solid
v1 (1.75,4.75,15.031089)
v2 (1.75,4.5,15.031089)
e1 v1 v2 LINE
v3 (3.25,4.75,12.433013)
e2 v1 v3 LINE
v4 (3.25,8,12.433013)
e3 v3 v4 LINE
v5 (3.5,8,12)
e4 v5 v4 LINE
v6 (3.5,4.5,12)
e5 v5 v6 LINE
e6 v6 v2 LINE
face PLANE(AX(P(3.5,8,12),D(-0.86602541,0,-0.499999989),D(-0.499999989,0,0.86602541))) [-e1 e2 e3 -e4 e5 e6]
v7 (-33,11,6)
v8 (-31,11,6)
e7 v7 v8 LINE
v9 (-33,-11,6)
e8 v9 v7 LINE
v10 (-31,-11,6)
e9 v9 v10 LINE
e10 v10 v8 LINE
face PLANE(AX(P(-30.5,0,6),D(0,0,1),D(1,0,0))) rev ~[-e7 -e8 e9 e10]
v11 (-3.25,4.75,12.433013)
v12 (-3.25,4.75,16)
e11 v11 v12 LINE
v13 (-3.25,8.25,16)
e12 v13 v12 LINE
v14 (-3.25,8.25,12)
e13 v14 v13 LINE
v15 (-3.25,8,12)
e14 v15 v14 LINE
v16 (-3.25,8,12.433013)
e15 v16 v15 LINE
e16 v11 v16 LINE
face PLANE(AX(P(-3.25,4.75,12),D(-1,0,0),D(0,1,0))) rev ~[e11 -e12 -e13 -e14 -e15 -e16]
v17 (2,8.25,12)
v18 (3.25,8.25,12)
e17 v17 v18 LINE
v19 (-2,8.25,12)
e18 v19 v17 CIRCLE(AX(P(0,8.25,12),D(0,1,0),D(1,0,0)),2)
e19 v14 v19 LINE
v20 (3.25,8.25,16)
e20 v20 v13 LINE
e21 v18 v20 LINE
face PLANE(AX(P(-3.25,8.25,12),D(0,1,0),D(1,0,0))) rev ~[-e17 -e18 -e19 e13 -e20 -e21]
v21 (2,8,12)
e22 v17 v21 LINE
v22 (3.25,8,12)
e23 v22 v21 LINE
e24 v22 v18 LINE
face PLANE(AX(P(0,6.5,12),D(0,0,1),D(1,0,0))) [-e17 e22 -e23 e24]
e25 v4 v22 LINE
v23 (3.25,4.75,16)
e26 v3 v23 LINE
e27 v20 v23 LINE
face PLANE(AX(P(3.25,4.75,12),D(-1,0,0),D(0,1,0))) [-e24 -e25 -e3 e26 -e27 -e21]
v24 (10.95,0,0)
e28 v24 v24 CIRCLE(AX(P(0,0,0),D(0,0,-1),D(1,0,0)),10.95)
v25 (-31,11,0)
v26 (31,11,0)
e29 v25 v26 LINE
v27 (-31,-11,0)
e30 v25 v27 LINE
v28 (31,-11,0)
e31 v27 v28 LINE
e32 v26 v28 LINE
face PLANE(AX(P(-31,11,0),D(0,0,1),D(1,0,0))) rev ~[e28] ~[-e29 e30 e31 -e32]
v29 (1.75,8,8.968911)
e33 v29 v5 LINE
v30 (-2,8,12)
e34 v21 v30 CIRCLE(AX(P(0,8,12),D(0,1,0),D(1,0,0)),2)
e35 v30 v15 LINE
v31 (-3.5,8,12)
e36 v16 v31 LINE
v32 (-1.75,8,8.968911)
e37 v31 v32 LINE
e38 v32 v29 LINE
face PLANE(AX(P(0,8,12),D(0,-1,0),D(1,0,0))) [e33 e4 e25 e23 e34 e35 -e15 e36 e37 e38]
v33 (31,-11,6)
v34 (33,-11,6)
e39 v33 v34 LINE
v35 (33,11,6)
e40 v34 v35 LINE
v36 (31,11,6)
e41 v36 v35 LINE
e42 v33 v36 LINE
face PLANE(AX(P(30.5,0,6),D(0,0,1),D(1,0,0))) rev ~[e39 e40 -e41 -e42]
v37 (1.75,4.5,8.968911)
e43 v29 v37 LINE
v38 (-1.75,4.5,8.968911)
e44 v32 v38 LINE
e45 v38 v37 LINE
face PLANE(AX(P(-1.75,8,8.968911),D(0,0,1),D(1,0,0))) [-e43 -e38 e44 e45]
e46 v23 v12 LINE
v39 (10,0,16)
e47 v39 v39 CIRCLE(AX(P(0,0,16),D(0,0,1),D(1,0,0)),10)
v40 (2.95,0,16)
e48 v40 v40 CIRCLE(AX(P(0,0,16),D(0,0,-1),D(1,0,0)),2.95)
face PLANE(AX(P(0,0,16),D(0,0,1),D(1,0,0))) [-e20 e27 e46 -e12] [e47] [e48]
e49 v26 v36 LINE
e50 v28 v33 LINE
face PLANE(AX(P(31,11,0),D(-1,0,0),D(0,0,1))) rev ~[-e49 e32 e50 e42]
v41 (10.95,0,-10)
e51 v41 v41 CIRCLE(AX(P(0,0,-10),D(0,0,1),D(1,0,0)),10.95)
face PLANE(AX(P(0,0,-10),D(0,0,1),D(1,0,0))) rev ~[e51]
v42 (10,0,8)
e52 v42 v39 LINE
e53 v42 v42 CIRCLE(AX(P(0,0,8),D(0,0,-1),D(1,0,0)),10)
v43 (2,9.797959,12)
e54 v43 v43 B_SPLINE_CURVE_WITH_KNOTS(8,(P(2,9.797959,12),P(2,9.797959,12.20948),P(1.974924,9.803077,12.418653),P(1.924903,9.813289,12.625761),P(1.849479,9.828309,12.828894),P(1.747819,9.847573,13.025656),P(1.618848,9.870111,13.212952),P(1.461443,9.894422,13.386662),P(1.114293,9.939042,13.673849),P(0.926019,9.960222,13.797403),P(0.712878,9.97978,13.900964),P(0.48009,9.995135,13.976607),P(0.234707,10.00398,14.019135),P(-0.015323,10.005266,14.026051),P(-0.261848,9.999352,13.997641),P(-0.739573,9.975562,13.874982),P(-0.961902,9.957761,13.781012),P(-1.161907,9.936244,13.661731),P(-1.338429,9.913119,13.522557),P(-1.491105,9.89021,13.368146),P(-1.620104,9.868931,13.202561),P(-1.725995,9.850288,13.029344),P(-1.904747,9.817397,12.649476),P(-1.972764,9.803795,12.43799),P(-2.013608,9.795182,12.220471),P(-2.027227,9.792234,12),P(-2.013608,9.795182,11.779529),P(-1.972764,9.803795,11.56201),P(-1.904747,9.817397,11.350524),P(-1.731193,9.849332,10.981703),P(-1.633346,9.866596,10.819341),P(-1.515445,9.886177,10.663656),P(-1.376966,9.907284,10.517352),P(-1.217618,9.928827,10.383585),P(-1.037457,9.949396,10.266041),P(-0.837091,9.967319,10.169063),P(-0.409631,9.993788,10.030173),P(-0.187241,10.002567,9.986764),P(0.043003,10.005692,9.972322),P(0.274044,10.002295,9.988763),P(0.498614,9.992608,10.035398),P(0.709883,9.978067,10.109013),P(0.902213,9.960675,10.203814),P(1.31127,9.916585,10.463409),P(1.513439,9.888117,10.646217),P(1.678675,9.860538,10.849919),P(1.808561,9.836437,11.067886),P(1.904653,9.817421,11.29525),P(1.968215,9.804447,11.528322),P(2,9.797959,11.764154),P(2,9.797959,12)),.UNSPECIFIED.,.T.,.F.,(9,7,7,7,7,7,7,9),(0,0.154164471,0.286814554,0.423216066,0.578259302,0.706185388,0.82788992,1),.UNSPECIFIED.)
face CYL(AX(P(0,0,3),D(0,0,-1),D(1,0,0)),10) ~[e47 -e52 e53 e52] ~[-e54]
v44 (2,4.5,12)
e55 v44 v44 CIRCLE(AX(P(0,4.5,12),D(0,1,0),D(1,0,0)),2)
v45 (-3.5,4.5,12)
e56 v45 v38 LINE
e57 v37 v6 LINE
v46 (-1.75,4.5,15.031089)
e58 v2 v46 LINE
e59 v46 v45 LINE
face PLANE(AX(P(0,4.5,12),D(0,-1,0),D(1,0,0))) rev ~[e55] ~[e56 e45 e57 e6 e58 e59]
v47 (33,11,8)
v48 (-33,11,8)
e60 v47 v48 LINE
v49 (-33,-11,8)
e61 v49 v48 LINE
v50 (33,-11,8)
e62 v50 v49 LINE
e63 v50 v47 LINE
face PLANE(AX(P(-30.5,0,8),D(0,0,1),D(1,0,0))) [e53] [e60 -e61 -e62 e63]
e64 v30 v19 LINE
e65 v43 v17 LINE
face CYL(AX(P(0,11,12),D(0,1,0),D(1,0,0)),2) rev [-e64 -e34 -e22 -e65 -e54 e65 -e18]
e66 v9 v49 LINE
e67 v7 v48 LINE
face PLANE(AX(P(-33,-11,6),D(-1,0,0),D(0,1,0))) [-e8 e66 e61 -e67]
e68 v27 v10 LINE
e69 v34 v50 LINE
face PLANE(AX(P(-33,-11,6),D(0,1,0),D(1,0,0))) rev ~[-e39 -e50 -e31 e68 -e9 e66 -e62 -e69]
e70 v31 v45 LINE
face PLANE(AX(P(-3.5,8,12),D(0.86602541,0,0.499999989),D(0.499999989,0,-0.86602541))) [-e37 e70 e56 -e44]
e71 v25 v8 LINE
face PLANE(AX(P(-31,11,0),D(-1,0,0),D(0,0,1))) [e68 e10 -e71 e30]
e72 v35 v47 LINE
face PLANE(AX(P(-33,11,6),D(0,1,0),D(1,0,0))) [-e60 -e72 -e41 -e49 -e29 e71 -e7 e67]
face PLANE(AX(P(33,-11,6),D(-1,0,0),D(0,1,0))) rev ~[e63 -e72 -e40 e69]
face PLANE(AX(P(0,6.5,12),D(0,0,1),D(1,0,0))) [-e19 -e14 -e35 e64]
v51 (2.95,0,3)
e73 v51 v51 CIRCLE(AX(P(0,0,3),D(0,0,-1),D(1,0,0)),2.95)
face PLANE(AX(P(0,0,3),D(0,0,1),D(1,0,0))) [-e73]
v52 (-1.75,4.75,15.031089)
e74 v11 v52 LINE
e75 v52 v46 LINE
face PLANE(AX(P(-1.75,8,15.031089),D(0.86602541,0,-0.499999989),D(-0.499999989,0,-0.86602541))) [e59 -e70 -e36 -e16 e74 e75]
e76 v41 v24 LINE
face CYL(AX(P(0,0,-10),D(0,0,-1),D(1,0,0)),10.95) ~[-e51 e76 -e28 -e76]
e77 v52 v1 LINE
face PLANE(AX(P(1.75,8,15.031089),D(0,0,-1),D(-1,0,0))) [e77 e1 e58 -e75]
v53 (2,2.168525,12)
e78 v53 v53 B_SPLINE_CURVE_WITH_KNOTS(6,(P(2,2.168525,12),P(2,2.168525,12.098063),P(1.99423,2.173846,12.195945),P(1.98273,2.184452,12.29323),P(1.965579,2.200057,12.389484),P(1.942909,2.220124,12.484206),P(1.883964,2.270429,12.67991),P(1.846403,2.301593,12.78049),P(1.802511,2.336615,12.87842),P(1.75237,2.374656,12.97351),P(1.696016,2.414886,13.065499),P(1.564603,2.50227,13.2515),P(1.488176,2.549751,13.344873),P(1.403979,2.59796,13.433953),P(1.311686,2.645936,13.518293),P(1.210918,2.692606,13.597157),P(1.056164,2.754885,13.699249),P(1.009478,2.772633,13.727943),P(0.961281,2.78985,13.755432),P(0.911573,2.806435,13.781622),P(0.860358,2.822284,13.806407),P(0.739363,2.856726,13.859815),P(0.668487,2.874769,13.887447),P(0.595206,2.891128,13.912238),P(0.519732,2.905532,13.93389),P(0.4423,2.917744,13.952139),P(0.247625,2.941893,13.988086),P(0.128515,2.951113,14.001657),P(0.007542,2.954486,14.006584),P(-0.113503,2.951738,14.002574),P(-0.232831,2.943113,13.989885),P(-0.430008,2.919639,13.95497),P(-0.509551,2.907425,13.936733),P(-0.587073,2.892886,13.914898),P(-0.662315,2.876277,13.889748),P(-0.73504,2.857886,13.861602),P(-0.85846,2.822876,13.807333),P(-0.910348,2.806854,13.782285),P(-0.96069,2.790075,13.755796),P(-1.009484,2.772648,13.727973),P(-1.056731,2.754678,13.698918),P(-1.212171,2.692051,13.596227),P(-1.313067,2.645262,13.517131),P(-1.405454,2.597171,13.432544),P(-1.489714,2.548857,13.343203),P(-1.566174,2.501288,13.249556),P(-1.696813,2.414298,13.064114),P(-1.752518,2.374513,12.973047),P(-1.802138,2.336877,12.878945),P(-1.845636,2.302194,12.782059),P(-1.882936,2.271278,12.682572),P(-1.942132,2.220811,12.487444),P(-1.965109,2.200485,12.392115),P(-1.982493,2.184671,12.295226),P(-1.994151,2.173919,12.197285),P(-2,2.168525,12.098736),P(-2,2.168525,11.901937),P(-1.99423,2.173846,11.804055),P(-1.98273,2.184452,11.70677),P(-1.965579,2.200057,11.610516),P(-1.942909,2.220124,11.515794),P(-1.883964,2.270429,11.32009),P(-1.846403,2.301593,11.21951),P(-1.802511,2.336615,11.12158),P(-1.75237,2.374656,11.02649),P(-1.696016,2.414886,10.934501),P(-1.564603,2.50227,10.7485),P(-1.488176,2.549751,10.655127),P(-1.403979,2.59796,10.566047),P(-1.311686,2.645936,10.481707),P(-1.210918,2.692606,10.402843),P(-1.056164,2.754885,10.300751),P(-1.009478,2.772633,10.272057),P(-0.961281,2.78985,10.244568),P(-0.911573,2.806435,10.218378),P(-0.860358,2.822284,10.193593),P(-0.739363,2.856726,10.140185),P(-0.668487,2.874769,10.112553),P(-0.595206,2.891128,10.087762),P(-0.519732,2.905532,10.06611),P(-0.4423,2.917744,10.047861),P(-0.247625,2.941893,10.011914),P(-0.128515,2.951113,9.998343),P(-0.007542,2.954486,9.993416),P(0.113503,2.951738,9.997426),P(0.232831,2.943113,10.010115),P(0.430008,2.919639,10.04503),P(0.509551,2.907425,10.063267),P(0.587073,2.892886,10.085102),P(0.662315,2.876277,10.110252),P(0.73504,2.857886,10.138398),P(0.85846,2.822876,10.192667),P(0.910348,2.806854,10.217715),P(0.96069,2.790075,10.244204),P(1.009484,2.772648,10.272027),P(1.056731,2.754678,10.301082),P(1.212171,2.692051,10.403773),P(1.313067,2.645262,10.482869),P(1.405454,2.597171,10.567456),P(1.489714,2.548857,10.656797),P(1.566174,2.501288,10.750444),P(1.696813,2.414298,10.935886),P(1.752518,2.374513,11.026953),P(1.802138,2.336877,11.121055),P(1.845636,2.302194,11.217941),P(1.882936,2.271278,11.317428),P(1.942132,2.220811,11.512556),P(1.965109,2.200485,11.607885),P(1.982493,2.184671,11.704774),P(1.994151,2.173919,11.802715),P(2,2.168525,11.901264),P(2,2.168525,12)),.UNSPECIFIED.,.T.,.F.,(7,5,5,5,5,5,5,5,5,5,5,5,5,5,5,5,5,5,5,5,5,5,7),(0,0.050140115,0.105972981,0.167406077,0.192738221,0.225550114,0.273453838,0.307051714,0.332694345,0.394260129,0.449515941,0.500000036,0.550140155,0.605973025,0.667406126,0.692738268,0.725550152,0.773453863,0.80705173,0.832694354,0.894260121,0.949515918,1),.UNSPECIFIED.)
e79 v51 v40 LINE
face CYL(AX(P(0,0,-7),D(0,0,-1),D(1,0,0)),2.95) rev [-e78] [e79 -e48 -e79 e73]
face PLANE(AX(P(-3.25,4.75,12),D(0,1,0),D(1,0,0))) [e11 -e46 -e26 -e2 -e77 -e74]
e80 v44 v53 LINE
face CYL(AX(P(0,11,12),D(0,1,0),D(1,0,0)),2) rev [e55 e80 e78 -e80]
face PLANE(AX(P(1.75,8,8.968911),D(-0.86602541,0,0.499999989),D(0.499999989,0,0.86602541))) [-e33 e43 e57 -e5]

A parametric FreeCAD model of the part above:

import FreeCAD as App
import Part
import Sketcher
from FreeCAD import Vector
Q = App.Units.Quantity


def add_polygon(sketch, points):
    """Adds a closed chain of lines whose ends are joined by coincident constraints."""
    first, n = sketch.GeometryCount, len(points)
    for a, b in zip(points, points[1:] + points[:1]):
        sketch.addGeometry(Part.LineSegment(App.Vector(*a, 0), App.Vector(*b, 0)), False)
    for i in range(n):
        sketch.addConstraint(Sketcher.Constraint("Coincident", first + i, 2, first + (i + 1) % n, 1))

doc = App.newDocument("Part")
body = doc.addObject("PartDesign::Body", "Body")

sketch1 = body.newObject("Sketcher::SketchObject", "Sketch")
sketch1.AttachmentSupport = (doc.getObject("XY_Plane"), [""])
sketch1.MapMode = "FlatFace"
sketch1.AttachmentOffset = App.Placement(Vector(0, 0, 6), App.Rotation())
add_polygon(sketch1, [(28, 11), (28, -11), (33, -11), (33, 11)])
sketch1.addConstraint(Sketcher.Constraint("Vertical", 0))
sketch1.addConstraint(Sketcher.Constraint("Horizontal", 1))
sketch1.addConstraint(Sketcher.Constraint("Vertical", 2))
sketch1.addConstraint(Sketcher.Constraint("Horizontal", 3))
sketch1.addConstraint(Sketcher.Constraint("DistanceX", 1, 1, 1, 2, Q("5 mm")))
sketch1.addConstraint(Sketcher.Constraint("DistanceY", 0, 2, 0, 1, Q("22 mm")))
sketch1.addConstraint(Sketcher.Constraint("DistanceX", -1, 1, 0, 2, Q("28 mm")))
sketch1.addConstraint(Sketcher.Constraint("DistanceY", 0, 2, -1, 1, Q("11 mm")))
pad1 = body.newObject("PartDesign::Pad", "Pad")
pad1.Profile = sketch1
pad1.Length = 2
body2 = doc.addObject("PartDesign::Body", "Body001")

sketch2 = body2.newObject("Sketcher::SketchObject", "Sketch001")
sketch2.AttachmentSupport = (doc.getObject("XY_Plane001"), [""])
sketch2.MapMode = "FlatFace"
sketch2.AttachmentOffset = App.Placement(Vector(0, 0, 6), App.Rotation())
add_polygon(sketch2, [(-33, 11), (-33, -11), (-28, -11), (-28, 11)])
sketch2.addConstraint(Sketcher.Constraint("Vertical", 0))
sketch2.addConstraint(Sketcher.Constraint("Horizontal", 1))
sketch2.addConstraint(Sketcher.Constraint("Vertical", 2))
sketch2.addConstraint(Sketcher.Constraint("Horizontal", 3))
sketch2.addConstraint(Sketcher.Constraint("DistanceX", 1, 1, 1, 2, Q("5 mm")))
sketch2.addConstraint(Sketcher.Constraint("DistanceY", 0, 2, 0, 1, Q("22 mm")))
sketch2.addConstraint(Sketcher.Constraint("DistanceX", 0, 2, -1, 1, Q("33 mm")))
sketch2.addConstraint(Sketcher.Constraint("DistanceY", 0, 2, -1, 1, Q("11 mm")))
pad2 = body2.newObject("PartDesign::Pad", "Pad001")
pad2.Profile = sketch2
pad2.Length = 2
body3 = doc.addObject("PartDesign::Body", "Body002")

sketch3 = body3.newObject("Sketcher::SketchObject", "Sketch002")
sketch3.AttachmentSupport = (doc.getObject("XY_Plane002"), [""])
sketch3.MapMode = "FlatFace"
sketch3.AttachmentOffset = App.Placement(Vector(0, 0, -7), App.Rotation())
sketch3.addGeometry(Part.Circle(Vector(0, 0, 0), Vector(0, 0, 1), 2.95), False)
sketch3.addConstraint(Sketcher.Constraint("Coincident", 0, 3, -1, 1))
sketch3.addConstraint(Sketcher.Constraint("Diameter", 0, Q("5.9 mm")))
pad3 = body3.newObject("PartDesign::Pad", "Pad002")
pad3.Profile = sketch3
pad3.Length = 25
body4 = doc.addObject("PartDesign::Body", "Body003")

sketch4 = body4.newObject("Sketcher::SketchObject", "Sketch003")
sketch4.AttachmentSupport = (doc.getObject("XY_Plane003"), [""])
sketch4.MapMode = "FlatFace"
sketch4.AttachmentOffset = App.Placement(Vector(0, 0, -7), App.Rotation())
sketch4.addGeometry(Part.Circle(Vector(0, 0, 0), Vector(0, 0, 1), 2.85), False)
sketch4.addConstraint(Sketcher.Constraint("Coincident", 0, 3, -1, 1))
sketch4.addConstraint(Sketcher.Constraint("Diameter", 0, Q("5.7 mm")))
pad4 = body4.newObject("PartDesign::Pad", "Pad003")
pad4.Profile = sketch4
pad4.Length = 25
body5 = doc.addObject("PartDesign::Body", "Body004")

sketch5 = body5.newObject("Sketcher::SketchObject", "Sketch004")
sketch5.AttachmentSupport = (doc.getObject("XZ_Plane004"), [""])
sketch5.MapMode = "FlatFace"
sketch5.AttachmentOffset = App.Placement(Vector(0, 0, -11), App.Rotation())
add_polygon(sketch5, [(-31, 8), (-31, 0), (31, 0), (31, 8)])
sketch5.addConstraint(Sketcher.Constraint("Vertical", 0))
sketch5.addConstraint(Sketcher.Constraint("Horizontal", 1))
sketch5.addConstraint(Sketcher.Constraint("Vertical", 2))
sketch5.addConstraint(Sketcher.Constraint("Horizontal", 3))
sketch5.addConstraint(Sketcher.Constraint("Symmetric", 0, 2, 1, 2, -1, 1))
sketch5.addConstraint(Sketcher.Constraint("DistanceX", 1, 1, 1, 2, Q("62 mm")))
sketch5.addConstraint(Sketcher.Constraint("DistanceY", 0, 2, 0, 1, Q("8 mm")))
pad5 = body5.newObject("PartDesign::Pad", "Pad004")
pad5.Profile = sketch5
pad5.Length = 22
doc.recompute()

boolean = body5.newObject("PartDesign::Boolean", "Boolean")
boolean.Type = "Cut"
boolean.addObjects([body4])
body6 = doc.addObject("PartDesign::Body", "Body005")

sketch6 = body6.newObject("Sketcher::SketchObject", "Sketch005")
sketch6.AttachmentSupport = (doc.getObject("XZ_Plane005"), [""])
sketch6.MapMode = "FlatFace"
sketch6.AttachmentOffset = App.Placement(Vector(0, 0, -11), App.Rotation())
sketch6.addGeometry(Part.Circle(Vector(0, 9, 0), Vector(0, 0, 1), 2), False)
sketch6.addConstraint(Sketcher.Constraint("PointOnObject", 0, 3, -2))
sketch6.addConstraint(Sketcher.Constraint("Diameter", 0, Q("4 mm")))
sketch6.addConstraint(Sketcher.Constraint("DistanceY", -1, 1, 0, 3, Q("9 mm")))
pad6 = body6.newObject("PartDesign::Pad", "Pad005")
pad6.Profile = sketch6
pad6.Length = 10
body7 = doc.addObject("PartDesign::Body", "Body006")

sketch7 = body7.newObject("Sketcher::SketchObject", "Sketch006")
sketch7.AttachmentSupport = (doc.getObject("XY_Plane006"), [""])
sketch7.MapMode = "FlatFace"
sketch7.AttachmentOffset = App.Placement(Vector(0, 0, 9), App.Rotation())
add_polygon(sketch7, [(-3.25, 8.25), (-3.25, 4.75), (3.25, 4.75), (3.25, 8.25)])
sketch7.addConstraint(Sketcher.Constraint("Vertical", 0))
sketch7.addConstraint(Sketcher.Constraint("Horizontal", 1))
sketch7.addConstraint(Sketcher.Constraint("Vertical", 2))
sketch7.addConstraint(Sketcher.Constraint("Horizontal", 3))
sketch7.addConstraint(Sketcher.Constraint("DistanceX", 1, 1, 1, 2, Q("6.5 mm")))
sketch7.addConstraint(Sketcher.Constraint("DistanceY", 0, 2, 0, 1, Q("3.5 mm")))
sketch7.addConstraint(Sketcher.Constraint("DistanceX", 0, 2, -1, 1, Q("3.25 mm")))
sketch7.addConstraint(Sketcher.Constraint("DistanceY", -1, 1, 0, 2, Q("4.75 mm")))
pad7 = body7.newObject("PartDesign::Pad", "Pad006")
pad7.Profile = sketch7
pad7.Length = 6.5
body8 = doc.addObject("PartDesign::Body", "Body007")

sketch8 = body8.newObject("Sketcher::SketchObject", "Sketch007")
sketch8.AttachmentSupport = (doc.getObject("XZ_Plane007"), [""])
sketch8.MapMode = "FlatFace"
sketch8.AttachmentOffset = App.Placement(Vector(0, 0, -8), App.Rotation())
add_polygon(sketch8, [(3.5, 9), (1.75, 12.031089), (-1.75, 12.031089), (-3.5, 9), (-1.75, 5.968911), (1.75, 5.968911)])
sketch8.addConstraint(Sketcher.Constraint("Horizontal", 1))
sketch8.addConstraint(Sketcher.Constraint("Horizontal", 4))
sketch8.addConstraint(Sketcher.Constraint("Symmetric", 2, 2, 5, 2, -2))
sketch8.addConstraint(Sketcher.Constraint("Parallel", 0, 3))
sketch8.addConstraint(Sketcher.Constraint("Parallel", 2, 5))
sketch8.addConstraint(Sketcher.Constraint("Vertical", 1, 2, 3, 2))
sketch8.addConstraint(Sketcher.Constraint("Vertical", 0, 2, 4, 2))
sketch8.addConstraint(Sketcher.Constraint("Angle", 0, Q("119.999999 deg")))
sketch8.addConstraint(Sketcher.Constraint("DistanceX", 1, 2, 1, 1, Q("3.5 mm")))
sketch8.addConstraint(Sketcher.Constraint("DistanceY", -1, 1, 2, 2, Q("9 mm")))
sketch8.addConstraint(Sketcher.Constraint("DistanceX", 2, 2, 5, 2, Q("7 mm")))
pad8 = body8.newObject("PartDesign::Pad", "Pad007")
pad8.Profile = sketch8
pad8.Length = 3.5
body9 = doc.addObject("PartDesign::Body", "Body008")

sketch9 = body9.newObject("Sketcher::SketchObject", "Sketch008")
sketch9.AttachmentSupport = (doc.getObject("XY_Plane008"), [""])
sketch9.MapMode = "FlatFace"
sketch9.AttachmentOffset = App.Placement(Vector(0, 0, -7), App.Rotation())
sketch9.addGeometry(Part.Circle(Vector(0, 0, 0), Vector(0, 0, 1), 2.85), False)
sketch9.addConstraint(Sketcher.Constraint("Coincident", 0, 3, -1, 1))
sketch9.addConstraint(Sketcher.Constraint("Diameter", 0, Q("5.7 mm")))
pad9 = body9.newObject("PartDesign::Pad", "Pad008")
pad9.Profile = sketch9
pad9.Length = 25
body10 = doc.addObject("PartDesign::Body", "Body009")

sketch10 = body10.newObject("Sketcher::SketchObject", "Sketch009")
sketch10.AttachmentSupport = (doc.getObject("XY_Plane009"), [""])
sketch10.MapMode = "FlatFace"
sketch10.addGeometry(Part.Circle(Vector(0, 0, 0), Vector(0, 0, 1), 10), False)
sketch10.addConstraint(Sketcher.Constraint("Coincident", 0, 3, -1, 1))
sketch10.addConstraint(Sketcher.Constraint("Diameter", 0, Q("20 mm")))
pad10 = body10.newObject("PartDesign::Pad", "Pad009")
pad10.Profile = sketch10
pad10.Length = 13
doc.recompute()

boolean2 = body10.newObject("PartDesign::Boolean", "Boolean001")
boolean2.Type = "Cut"
boolean2.addObjects([body9])
doc.recompute()

boolean3 = body10.newObject("PartDesign::Boolean", "Boolean002")
boolean3.Type = "Cut"
boolean3.addObjects([body8])
doc.recompute()

boolean4 = body10.newObject("PartDesign::Boolean", "Boolean003")
boolean4.Type = "Cut"
boolean4.addObjects([body7])
doc.recompute()

boolean5 = body10.newObject("PartDesign::Boolean", "Boolean004")
boolean5.Type = "Cut"
boolean5.addObjects([body6])
body11 = doc.addObject("PartDesign::Body", "Body010")
doc.recompute()

body10.Placement = App.Placement(Vector(0, 0, 3), App.Rotation(Vector(0, 0, 1), 0))
boolean6 = body11.newObject("PartDesign::Boolean", "Boolean005")
boolean6.Type = "Fuse"
boolean6.addObjects([body10])
doc.recompute()

boolean7 = body11.newObject("PartDesign::Boolean", "Boolean006")
boolean7.Type = "Fuse"
boolean7.addObjects([body5])
doc.recompute()

boolean8 = body11.newObject("PartDesign::Boolean", "Boolean007")
boolean8.Type = "Cut"
boolean8.addObjects([body3])
doc.recompute()

boolean9 = body11.newObject("PartDesign::Boolean", "Boolean008")
boolean9.Type = "Fuse"
boolean9.addObjects([body2])
doc.recompute()

boolean10 = body11.newObject("PartDesign::Boolean", "Boolean009")
boolean10.Type = "Fuse"
boolean10.addObjects([body])
body12 = doc.addObject("PartDesign::Body", "Body011")

sketch11 = body12.newObject("Sketcher::SketchObject", "Sketch010")
sketch11.AttachmentSupport = (doc.getObject("XY_Plane011"), [""])
sketch11.MapMode = "FlatFace"
sketch11.AttachmentOffset = App.Placement(Vector(0, 0, -10), App.Rotation())
sketch11.addGeometry(Part.Circle(Vector(0, 0, 0), Vector(0, 0, 1), 10.95), False)
sketch11.addConstraint(Sketcher.Constraint("Coincident", 0, 3, -1, 1))
sketch11.addConstraint(Sketcher.Constraint("Diameter", 0, Q("21.9 mm")))
pad11 = body12.newObject("PartDesign::Pad", "Pad010")
pad11.Profile = sketch11
pad11.Length = 13
doc.recompute()

boolean11 = body12.newObject("PartDesign::Boolean", "Boolean010")
boolean11.Type = "Fuse"
boolean11.addObjects([body11])

doc.recompute()
